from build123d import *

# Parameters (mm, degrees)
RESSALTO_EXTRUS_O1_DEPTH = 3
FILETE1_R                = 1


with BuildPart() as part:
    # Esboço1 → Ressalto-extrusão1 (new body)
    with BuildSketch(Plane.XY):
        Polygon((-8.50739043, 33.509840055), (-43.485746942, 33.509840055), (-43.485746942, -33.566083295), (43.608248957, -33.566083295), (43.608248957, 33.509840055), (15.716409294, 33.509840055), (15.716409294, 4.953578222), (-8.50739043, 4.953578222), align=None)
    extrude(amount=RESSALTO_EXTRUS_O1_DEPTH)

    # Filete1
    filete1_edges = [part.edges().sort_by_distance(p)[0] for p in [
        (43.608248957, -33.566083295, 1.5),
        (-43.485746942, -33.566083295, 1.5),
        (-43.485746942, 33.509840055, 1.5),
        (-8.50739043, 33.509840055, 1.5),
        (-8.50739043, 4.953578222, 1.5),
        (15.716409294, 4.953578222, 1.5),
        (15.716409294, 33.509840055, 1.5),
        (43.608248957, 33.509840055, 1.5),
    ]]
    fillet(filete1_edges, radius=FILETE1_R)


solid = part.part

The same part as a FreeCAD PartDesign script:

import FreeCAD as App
import Part
import Sketcher

V = App.Vector
Q = App.Units.Quantity


def edges_at(feature, points):
    """Names of the edges that pass closest to the given points."""
    edges = feature.Shape.Edges
    near = lambda p: min(range(len(edges)), key=lambda i: edges[i].distToShape(Part.Vertex(*p))[0])
    return sorted({f"Edge{near(p) + 1}" for p in points})


def add_polygon(sketch, points):
    """Adds a closed chain of lines whose ends are joined by coincident constraints."""
    first, n = sketch.GeometryCount, len(points)
    for a, b in zip(points, points[1:] + points[:1]):
        sketch.addGeometry(Part.LineSegment(App.Vector(*a, 0), App.Vector(*b, 0)), False)
    for i in range(n):
        sketch.addConstraint(Sketcher.Constraint("Coincident", first + i, 2, first + (i + 1) % n, 1))

doc = App.newDocument("Part")
params = doc.addObject("Spreadsheet::Sheet", "Params")
for row, (alias, value) in enumerate([
    ("pad1_length", "3 mm"),
    ("fillet_radius", "1 mm"),
], start=1):
    params.set(f"A{row}", alias)
    params.set(f"B{row}", "=" + value)
    params.setAlias(f"B{row}", alias)

body = doc.addObject("PartDesign::Body", "Body")

# Sketch on XY plane
sketch1 = doc.addObject("Sketcher::SketchObject", "Sketch")
body.addObject(sketch1)
sketch1.AttachmentSupport = (doc.XY_Plane, [""])
sketch1.MapMode = "FlatFace"
add_polygon(sketch1, [(-9, 34), (-43, 34), (-43, -34), (44, -34), (44, 34), (16, 34), (16, 5), (-9, 5)])  # lines 0-7
sketch1.addConstraint([
    Sketcher.Constraint("Horizontal", 0),
    Sketcher.Constraint("Vertical", 1),
    Sketcher.Constraint("Horizontal", 2),
    Sketcher.Constraint("Vertical", 3),
    Sketcher.Constraint("Horizontal", 4),
    Sketcher.Constraint("Vertical", 5),
    Sketcher.Constraint("Horizontal", 6),
    Sketcher.Constraint("Vertical", 7),
    Sketcher.Constraint("Horizontal", 0, 2, 3, 2),
    Sketcher.Constraint("DistanceX", 6, 2, 6, 1, Q("24.2238 mm")),
    Sketcher.Constraint("DistanceX", 4, 2, 4, 1, Q("27.89184 mm")),
    Sketcher.Constraint("DistanceY", 5, 2, 5, 1, Q("28.556262 mm")),
    Sketcher.Constraint("DistanceX", 0, 2, 0, 1, Q("34.978357 mm")),
    Sketcher.Constraint("DistanceY", 1, 2, 1, 1, Q("67.075923 mm")),
    Sketcher.Constraint("DistanceY", -1, 1, 0, 2, Q("33.50984 mm")),
    Sketcher.Constraint("DistanceX", -1, 1, 2, 2, Q("43.608249 mm")),
])
pad1 = doc.addObject("PartDesign::Pad", "Pad")
body.addObject(pad1)
pad1.Profile = sketch1
pad1.setExpression("Length", "Params.pad1_length")
doc.recompute()

fillet = doc.addObject("PartDesign::Fillet", "Fillet")
body.addObject(fillet)
fillet.Base = (pad1, edges_at(pad1, [
    (43.608, -33.566, 1.5),
    (-43.486, -33.566, 1.5),
    (-43.486, 33.51, 1.5),
    (-8.507, 33.51, 1.5),
    (-8.507, 4.954, 1.5),
    (15.716, 4.954, 1.5),
    (15.716, 33.51, 1.5),
    (43.608, 33.51, 1.5),
]))
fillet.setExpression("Radius", "Params.fillet_radius")

doc.recompute()
